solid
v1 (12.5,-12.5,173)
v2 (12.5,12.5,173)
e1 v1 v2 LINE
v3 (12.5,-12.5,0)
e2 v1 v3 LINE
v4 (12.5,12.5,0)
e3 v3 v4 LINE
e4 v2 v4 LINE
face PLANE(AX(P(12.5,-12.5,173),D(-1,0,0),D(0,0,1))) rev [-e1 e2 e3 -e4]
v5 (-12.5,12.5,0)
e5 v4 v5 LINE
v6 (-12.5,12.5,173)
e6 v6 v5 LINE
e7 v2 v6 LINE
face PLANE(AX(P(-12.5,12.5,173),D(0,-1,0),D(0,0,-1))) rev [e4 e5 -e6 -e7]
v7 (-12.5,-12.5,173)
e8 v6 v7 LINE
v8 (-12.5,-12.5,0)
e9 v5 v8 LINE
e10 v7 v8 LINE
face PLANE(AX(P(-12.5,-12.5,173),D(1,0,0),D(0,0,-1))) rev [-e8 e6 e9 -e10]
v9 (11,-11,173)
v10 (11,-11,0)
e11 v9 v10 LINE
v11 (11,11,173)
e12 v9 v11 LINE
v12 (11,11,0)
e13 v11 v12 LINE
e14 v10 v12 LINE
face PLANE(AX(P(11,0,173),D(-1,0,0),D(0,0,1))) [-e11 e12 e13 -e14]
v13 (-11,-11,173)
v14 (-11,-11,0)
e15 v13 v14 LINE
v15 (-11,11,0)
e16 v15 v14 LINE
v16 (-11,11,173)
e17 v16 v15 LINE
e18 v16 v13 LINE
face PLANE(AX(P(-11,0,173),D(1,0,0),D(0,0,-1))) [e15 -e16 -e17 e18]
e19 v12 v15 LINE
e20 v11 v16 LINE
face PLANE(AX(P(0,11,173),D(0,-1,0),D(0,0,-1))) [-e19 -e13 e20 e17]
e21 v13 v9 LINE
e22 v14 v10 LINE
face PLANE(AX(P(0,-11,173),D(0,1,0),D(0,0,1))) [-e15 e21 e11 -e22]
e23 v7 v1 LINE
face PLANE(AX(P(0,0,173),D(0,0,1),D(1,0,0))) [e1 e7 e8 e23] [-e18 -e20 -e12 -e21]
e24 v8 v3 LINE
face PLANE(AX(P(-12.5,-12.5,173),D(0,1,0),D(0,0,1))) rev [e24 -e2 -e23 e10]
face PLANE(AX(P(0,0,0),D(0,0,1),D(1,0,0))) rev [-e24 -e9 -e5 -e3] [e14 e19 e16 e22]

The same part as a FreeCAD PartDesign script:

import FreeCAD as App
import Part
import Sketcher
from FreeCAD import Vector


def add_polygon(sketch, points):
    """Adds a closed chain of lines whose ends are joined by coincident constraints."""
    first, n = sketch.GeometryCount, len(points)
    for a, b in zip(points, points[1:] + points[:1]):
        sketch.addGeometry(Part.LineSegment(App.Vector(*a, 0), App.Vector(*b, 0)), False)
    for i in range(n):
        sketch.addConstraint(Sketcher.Constraint("Coincident", first + i, 2, first + (i + 1) % n, 1))

doc = App.newDocument("Part")
body = doc.addObject("PartDesign::Body", "Body")

# Sketch on XY plane
sketch1 = body.newObject("Sketcher::SketchObject", "Sketch")
sketch1.AttachmentSupport = (doc.getObject("XY_Plane"), [""])
sketch1.MapMode = "FlatFace"
add_polygon(sketch1, [(-12, 12), (-12, -12), (12, -12), (12, 12)])  # lines 0-3
add_polygon(sketch1, [(11, -11), (-11, -11), (-11, 11), (11, 11)])  # lines 4-7
sketch1.addConstraint([
    Sketcher.Constraint("Vertical", 0),
    Sketcher.Constraint("Horizontal", 1),
    Sketcher.Constraint("Vertical", 2),
    Sketcher.Constraint("Horizontal", 3),
    Sketcher.Constraint("Horizontal", 4),
    Sketcher.Constraint("Vertical", 5),
    Sketcher.Constraint("Horizontal", 6),
    Sketcher.Constraint("Vertical", 7),
    Sketcher.Constraint("Symmetric", 0, 2, 2, 2, -1, 1),
    Sketcher.Constraint("Symmetric", 4, 2, 6, 2, -1, 1),
    Sketcher.Constraint("Equal", 3, 0),
    Sketcher.Constraint("Equal", 6, 5),
    Sketcher.Constraint("DistanceX", 1, 1, 1, 2, 25.0),
    Sketcher.Constraint("DistanceX", 4, 2, 4, 1, 22.0),
])
pad1 = body.newObject("PartDesign::Pad", "Pad")
pad1.Profile = sketch1
pad1.Length = 173

doc.recompute()
